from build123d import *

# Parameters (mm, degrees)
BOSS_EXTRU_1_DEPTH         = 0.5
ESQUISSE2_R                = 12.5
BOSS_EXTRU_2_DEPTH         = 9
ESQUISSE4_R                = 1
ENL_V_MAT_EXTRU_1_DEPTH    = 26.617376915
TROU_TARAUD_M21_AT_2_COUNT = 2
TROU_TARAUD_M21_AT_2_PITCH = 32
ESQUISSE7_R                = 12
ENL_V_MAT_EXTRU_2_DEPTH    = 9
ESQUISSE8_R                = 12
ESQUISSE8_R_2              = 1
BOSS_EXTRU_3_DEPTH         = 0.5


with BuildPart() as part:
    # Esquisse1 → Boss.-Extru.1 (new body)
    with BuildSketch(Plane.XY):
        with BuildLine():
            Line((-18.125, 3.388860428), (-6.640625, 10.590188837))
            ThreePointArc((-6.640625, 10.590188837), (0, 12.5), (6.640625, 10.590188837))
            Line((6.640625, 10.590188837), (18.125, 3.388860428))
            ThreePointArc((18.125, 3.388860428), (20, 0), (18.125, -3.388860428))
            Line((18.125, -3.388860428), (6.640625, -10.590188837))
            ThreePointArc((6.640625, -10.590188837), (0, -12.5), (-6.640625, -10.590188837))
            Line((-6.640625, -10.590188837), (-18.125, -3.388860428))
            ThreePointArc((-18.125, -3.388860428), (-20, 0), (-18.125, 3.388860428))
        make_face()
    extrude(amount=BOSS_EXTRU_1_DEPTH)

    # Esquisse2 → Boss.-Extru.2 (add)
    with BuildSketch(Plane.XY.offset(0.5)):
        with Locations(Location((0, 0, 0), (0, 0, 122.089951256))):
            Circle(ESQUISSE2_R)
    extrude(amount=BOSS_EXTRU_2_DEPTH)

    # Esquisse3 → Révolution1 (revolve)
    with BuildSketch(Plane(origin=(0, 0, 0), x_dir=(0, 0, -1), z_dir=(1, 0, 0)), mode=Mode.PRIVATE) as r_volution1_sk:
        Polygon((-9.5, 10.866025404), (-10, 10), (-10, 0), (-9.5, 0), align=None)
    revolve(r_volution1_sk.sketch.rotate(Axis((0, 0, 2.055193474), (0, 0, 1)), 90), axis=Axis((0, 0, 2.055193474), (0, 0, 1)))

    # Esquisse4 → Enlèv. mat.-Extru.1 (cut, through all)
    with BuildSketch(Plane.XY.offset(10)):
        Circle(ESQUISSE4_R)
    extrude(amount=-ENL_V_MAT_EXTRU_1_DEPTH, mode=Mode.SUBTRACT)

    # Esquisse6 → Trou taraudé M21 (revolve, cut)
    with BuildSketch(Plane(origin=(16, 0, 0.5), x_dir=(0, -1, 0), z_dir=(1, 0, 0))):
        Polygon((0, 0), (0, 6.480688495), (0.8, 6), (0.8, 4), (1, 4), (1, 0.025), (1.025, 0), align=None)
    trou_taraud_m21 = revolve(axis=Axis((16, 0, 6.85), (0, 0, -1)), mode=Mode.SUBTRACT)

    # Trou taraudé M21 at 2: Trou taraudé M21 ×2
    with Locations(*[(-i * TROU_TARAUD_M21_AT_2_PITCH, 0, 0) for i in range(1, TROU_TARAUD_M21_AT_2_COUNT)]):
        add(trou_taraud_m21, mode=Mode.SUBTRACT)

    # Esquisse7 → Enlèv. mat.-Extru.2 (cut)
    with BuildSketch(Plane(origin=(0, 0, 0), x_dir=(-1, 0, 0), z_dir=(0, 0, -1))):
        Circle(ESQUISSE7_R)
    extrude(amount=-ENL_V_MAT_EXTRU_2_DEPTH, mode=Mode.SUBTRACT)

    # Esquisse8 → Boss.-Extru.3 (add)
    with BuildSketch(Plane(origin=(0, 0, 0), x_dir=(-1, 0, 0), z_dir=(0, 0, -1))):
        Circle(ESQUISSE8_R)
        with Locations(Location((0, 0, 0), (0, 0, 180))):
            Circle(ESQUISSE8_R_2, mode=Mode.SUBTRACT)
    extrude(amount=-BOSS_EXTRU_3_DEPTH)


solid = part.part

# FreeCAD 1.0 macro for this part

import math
import FreeCAD as App
import Part
import Sketcher
Q = App.Units.Quantity


def add_polygon(sketch, points):
    """Adds a closed chain of lines whose ends are joined by coincident constraints."""
    first, n = sketch.GeometryCount, len(points)
    for a, b in zip(points, points[1:] + points[:1]):
        sketch.addGeometry(Part.LineSegment(App.Vector(*a, 0), App.Vector(*b, 0)), False)
    for i in range(n):
        sketch.addConstraint(Sketcher.Constraint("Coincident", first + i, 2, first + (i + 1) % n, 1))

doc = App.newDocument("Part")
body = doc.addObject("PartDesign::Body", "Body")

# Sketch on XY plane
sketch1 = body.newObject("Sketcher::SketchObject", "Sketch")
sketch1.AttachmentSupport = (doc.getObject("XY_Plane"), [""])
sketch1.MapMode = "FlatFace"
sketch1.addGeometry([
    Part.LineSegment(App.Vector(-6.640625, 10.590189, 0), App.Vector(-18.125, 3.38886, 0)),  # 0
    Part.ArcOfCircle(Part.Circle(App.Vector(-16, 0, 0), App.Vector(0, 0, 1), 4), math.radians(122.089951), math.radians(237.910049)),  # 1
    Part.LineSegment(App.Vector(-18.125, -3.38886, 0), App.Vector(-6.640625, -10.590189, 0)),  # 2
    Part.ArcOfCircle(Part.Circle(App.Vector(0, 0, 0), App.Vector(0, 0, 1), 12.5), math.radians(-122.089951), math.radians(-57.910049)),  # 3
    Part.LineSegment(App.Vector(6.640625, -10.590189, 0), App.Vector(18.125, -3.38886, 0)),  # 4
    Part.ArcOfCircle(Part.Circle(App.Vector(16, 0, 0), App.Vector(0, 0, 1), 4), math.radians(-57.910049), math.radians(57.910049)),  # 5
    Part.LineSegment(App.Vector(18.125, 3.38886, 0), App.Vector(6.640625, 10.590189, 0)),  # 6
    Part.ArcOfCircle(Part.Circle(App.Vector(0, 0, 0), App.Vector(0, 0, 1), 12.5), math.radians(57.910049), math.radians(122.089951)),  # 7
], False)
sketch1.addConstraint([
    Sketcher.Constraint("Tangent", 0, 2, 1, 1),
    Sketcher.Constraint("Tangent", 1, 2, 2, 1),
    Sketcher.Constraint("Tangent", 2, 2, 3, 1),
    Sketcher.Constraint("Tangent", 3, 2, 4, 1),
    Sketcher.Constraint("Tangent", 4, 2, 5, 1),
    Sketcher.Constraint("Tangent", 5, 2, 6, 1),
    Sketcher.Constraint("Tangent", 6, 2, 7, 1),
    Sketcher.Constraint("Tangent", 7, 2, 0, 1),
    Sketcher.Constraint("Coincident", 3, 3, -1, 1),
    Sketcher.Constraint("Coincident", 7, 3, -1, 1),
    Sketcher.Constraint("Equal", 1, 5),
    Sketcher.Constraint("Equal", 3, 7),
    Sketcher.Constraint("Symmetric", 1, 3, 5, 3, -1, 1),
    Sketcher.Constraint("PointOnObject", 1, 3, -1),
    Sketcher.Constraint("Radius", 1, 4.0),
    Sketcher.Constraint("Radius", 3, 12.5),
    Sketcher.Constraint("DistanceX", 1, 3, -1, 1, 16.0),
])
pad1 = body.newObject("PartDesign::Pad", "Pad")
pad1.Profile = sketch1
pad1.Length = 0.5

# Sketch on XY plane
sketch2 = body.newObject("Sketcher::SketchObject", "Sketch001")
sketch2.AttachmentSupport = (doc.getObject("XY_Plane"), [""])
sketch2.MapMode = "FlatFace"
sketch2.AttachmentOffset = App.Placement(App.Vector(0, 0, 0.5), App.Rotation())
sketch2.addGeometry(Part.Circle(App.Vector(0, 0, 0), App.Vector(0, 0, 1), 12.5), False)
sketch2.addConstraint([
    Sketcher.Constraint("Coincident", 0, 3, -1, 1),
    Sketcher.Constraint("Diameter", 0, 25.0),
])
pad2 = body.newObject("PartDesign::Pad", "Pad001")
pad2.Profile = sketch2
pad2.Length = 9

# Sketch on YZ plane
sketch3 = body.newObject("Sketcher::SketchObject", "Sketch002")
sketch3.AttachmentSupport = (doc.getObject("YZ_Plane"), [""])
sketch3.MapMode = "FlatFace"
add_polygon(sketch3, [(10.866025, 9.5), (10, 10), (0, 10), (0, 9.5)])  # lines 0-3
sketch3.addConstraint([
    Sketcher.Constraint("Horizontal", 1),
    Sketcher.Constraint("Vertical", 2),
    Sketcher.Constraint("Horizontal", 3),
    Sketcher.Constraint("PointOnObject", 1, 2, -2),
    Sketcher.Constraint("DistanceX", 1, 2, 1, 1, 10.0),
    Sketcher.Constraint("Angle", 0, Q("150 deg")),
    Sketcher.Constraint("Distance", 0, 1.0),
    Sketcher.Constraint("DistanceY", -1, 1, 0, 2, 10.0),
])
revolution = body.newObject("PartDesign::Revolution", "Revolution")
revolution.Profile = sketch3
revolution.ReferenceAxis = (sketch3, ["V_Axis"])
revolution.Angle = 360

# Sketch on XY plane
sketch4 = body.newObject("Sketcher::SketchObject", "Sketch003")
sketch4.AttachmentSupport = (doc.getObject("XY_Plane"), [""])
sketch4.MapMode = "FlatFace"
sketch4.AttachmentOffset = App.Placement(App.Vector(0, 0, 10), App.Rotation())
sketch4.addGeometry(Part.Circle(App.Vector(0, 0, 0), App.Vector(0, 0, 1), 1), False)
sketch4.addConstraint([
    Sketcher.Constraint("Coincident", 0, 3, -1, 1),
    Sketcher.Constraint("Diameter", 0, 2.0),
])
pocket1 = body.newObject("PartDesign::Pocket", "Pocket")
pocket1.Profile = sketch4
pocket1.Type = "ThroughAll"

# Sketch on YZ plane
sketch5 = body.newObject("Sketcher::SketchObject", "Sketch004")
sketch5.AttachmentSupport = (doc.getObject("YZ_Plane"), [""])
sketch5.MapMode = "FlatFace"
sketch5.AttachmentOffset = App.Placement(App.Vector(0, 0, 16), App.Rotation())
add_polygon(sketch5, [(0, -5.980688), (0, 0.5), (-1.025, 0.5), (-1, 0.475), (-1, -3.5), (-0.8, -3.5), (-0.8, -5.5)])  # lines 0-6
sketch5.addConstraint([
    Sketcher.Constraint("Vertical", 0),
    Sketcher.Constraint("Horizontal", 1),
    Sketcher.Constraint("Vertical", 3),
    Sketcher.Constraint("Horizontal", 4),
    Sketcher.Constraint("Vertical", 5),
    Sketcher.Constraint("PointOnObject", 0, 2, -2),
    Sketcher.Constraint("DistanceY", 5, 2, 5, 1, 2.0),
    Sketcher.Constraint("Angle", 2, Q("-45 deg")),
    Sketcher.Constraint("Angle", 6, Q("-31 deg")),
    Sketcher.Constraint("DistanceX", 4, 1, 4, 2, 0.2),
    Sketcher.Constraint("DistanceX", 2, 2, -1, 1, 1.0),
    Sketcher.Constraint("DistanceY", 3, 2, 1, 2, 4.0),
    Sketcher.Constraint("DistanceY", -1, 1, 0, 2, 0.5),
    Sketcher.Constraint("DistanceX", 1, 2, 1, 1, 1.025),
])
groove = body.newObject("PartDesign::Groove", "Groove")
groove.Profile = sketch5
groove.ReferenceAxis = (sketch5, ["V_Axis"])
groove.Angle = 360
doc.recompute()

linearpattern = body.newObject("PartDesign::LinearPattern", "LinearPattern")
linearpattern.Originals = [groove]
linearpattern.Direction = (doc.getObject("X_Axis"), [""])
linearpattern.Mode = "offset"
linearpattern.Offset = 32
linearpattern.Occurrences = 2
linearpattern.Reversed = True
body.Tip = linearpattern

# Sketch on XY plane
sketch6 = body.newObject("Sketcher::SketchObject", "Sketch005")
sketch6.AttachmentSupport = (doc.getObject("XY_Plane"), [""])
sketch6.MapMode = "FlatFace"
sketch6.addGeometry(Part.Circle(App.Vector(0, 0, 0), App.Vector(0, 0, 1), 12), False)
sketch6.addConstraint([
    Sketcher.Constraint("Coincident", 0, 3, -1, 1),
    Sketcher.Constraint("Diameter", 0, 24.0),
])
pocket2 = body.newObject("PartDesign::Pocket", "Pocket001")
pocket2.Profile = sketch6
pocket2.Length = 9
pocket2.Reversed = True

# Sketch on XY plane
sketch7 = body.newObject("Sketcher::SketchObject", "Sketch006")
sketch7.AttachmentSupport = (doc.getObject("XY_Plane"), [""])
sketch7.MapMode = "FlatFace"
sketch7.addGeometry([
    Part.Circle(App.Vector(0, 0, 0), App.Vector(0, 0, 1), 12),
    Part.Circle(App.Vector(0, 0, 0), App.Vector(0, 0, 1), 1),
], False)
sketch7.addConstraint([
    Sketcher.Constraint("Coincident", 0, 3, -1, 1),
    Sketcher.Constraint("Coincident", 1, 3, -1, 1),
    Sketcher.Constraint("Diameter", 0, 24.0),
    Sketcher.Constraint("Diameter", 1, 2.0),
])
pad3 = body.newObject("PartDesign::Pad", "Pad002")
pad3.Profile = sketch7
pad3.Length = 0.5

doc.recompute()
